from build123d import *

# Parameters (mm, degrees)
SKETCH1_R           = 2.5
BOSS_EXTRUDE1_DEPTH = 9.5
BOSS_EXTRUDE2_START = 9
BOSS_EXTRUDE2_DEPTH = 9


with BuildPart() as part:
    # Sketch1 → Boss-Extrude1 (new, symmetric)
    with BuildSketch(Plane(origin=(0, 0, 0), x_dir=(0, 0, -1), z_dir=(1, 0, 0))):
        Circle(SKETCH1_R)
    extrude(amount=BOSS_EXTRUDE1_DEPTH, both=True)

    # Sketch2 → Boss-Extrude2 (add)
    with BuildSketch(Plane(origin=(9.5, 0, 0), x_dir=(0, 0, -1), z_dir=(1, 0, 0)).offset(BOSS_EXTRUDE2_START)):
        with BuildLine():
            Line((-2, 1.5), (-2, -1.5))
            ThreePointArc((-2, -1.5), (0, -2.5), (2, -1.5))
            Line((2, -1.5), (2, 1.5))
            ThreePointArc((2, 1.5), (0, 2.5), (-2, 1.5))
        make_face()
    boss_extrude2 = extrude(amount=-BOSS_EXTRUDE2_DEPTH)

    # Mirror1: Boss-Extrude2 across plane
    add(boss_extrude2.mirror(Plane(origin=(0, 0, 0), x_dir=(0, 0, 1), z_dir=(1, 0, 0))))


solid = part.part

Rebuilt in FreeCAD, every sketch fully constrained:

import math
import FreeCAD as App
import Part
import Sketcher
from FreeCAD import Vector
Q = App.Units.Quantity

doc = App.newDocument("Part")
body = doc.addObject("PartDesign::Body", "Body")

# Sketch on YZ plane
sketch1 = body.newObject("Sketcher::SketchObject", "Sketch")
sketch1.AttachmentSupport = (doc.getObject("YZ_Plane"), [""])
sketch1.MapMode = "FlatFace"
sketch1.addGeometry(Part.Circle(Vector(0, 0, 0), Vector(0, 0, 1), 2.5), False)
sketch1.addConstraint(Sketcher.Constraint("Coincident", 0, 3, -1, 1))
sketch1.addConstraint(Sketcher.Constraint("Diameter", 0, Q("5 mm")))
pad1 = body.newObject("PartDesign::Pad", "Pad")
pad1.Profile = sketch1
pad1.Length = 19
pad1.Midplane = True

# Sketch on YZ plane
sketch2 = body.newObject("Sketcher::SketchObject", "Sketch001")
sketch2.AttachmentSupport = (doc.getObject("YZ_Plane"), [""])
sketch2.MapMode = "FlatFace"
sketch2.AttachmentOffset = App.Placement(Vector(0, 0, 18.5), App.Rotation())
sketch2.addGeometry(Part.LineSegment(Vector(1.5, 2, 0), Vector(-1.5, 2, 0)), False)
sketch2.addGeometry(Part.ArcOfCircle(Part.Circle(Vector(0, 0, 0), Vector(0, 0, 1), 2.5), math.radians(127), math.radians(233)), False)
sketch2.addGeometry(Part.LineSegment(Vector(-1.5, -2, 0), Vector(1.5, -2, 0)), False)
sketch2.addGeometry(Part.ArcOfCircle(Part.Circle(Vector(0, 0, 0), Vector(0, 0, 1), 2.5), math.radians(-53), math.radians(53)), False)
sketch2.addConstraint(Sketcher.Constraint("Coincident", 0, 2, 1, 1))
sketch2.addConstraint(Sketcher.Constraint("Coincident", 1, 2, 2, 1))
sketch2.addConstraint(Sketcher.Constraint("Coincident", 2, 2, 3, 1))
sketch2.addConstraint(Sketcher.Constraint("Coincident", 3, 2, 0, 1))
sketch2.addConstraint(Sketcher.Constraint("Horizontal", 0))
sketch2.addConstraint(Sketcher.Constraint("Horizontal", 2))
sketch2.addConstraint(Sketcher.Constraint("Coincident", 1, 3, -1, 1))
sketch2.addConstraint(Sketcher.Constraint("Coincident", 3, 3, -1, 1))
sketch2.addConstraint(Sketcher.Constraint("Equal", 1, 3))
sketch2.addConstraint(Sketcher.Constraint("Vertical", 0, 2, 1, 2))
sketch2.addConstraint(Sketcher.Constraint("Radius", 1, Q("2.5 mm")))
sketch2.addConstraint(Sketcher.Constraint("DistanceX", 0, 2, 0, 1, Q("3 mm")))
pad2 = body.newObject("PartDesign::Pad", "Pad001")
pad2.Profile = sketch2
pad2.Length = 9
pad2.Reversed = True
doc.recompute()

mirrored = body.newObject("PartDesign::Mirrored", "Mirrored")
mirrored.Originals = [pad2]
mirrored.MirrorPlane = (doc.getObject("YZ_Plane"), [""])
body.Tip = mirrored

doc.recompute()
